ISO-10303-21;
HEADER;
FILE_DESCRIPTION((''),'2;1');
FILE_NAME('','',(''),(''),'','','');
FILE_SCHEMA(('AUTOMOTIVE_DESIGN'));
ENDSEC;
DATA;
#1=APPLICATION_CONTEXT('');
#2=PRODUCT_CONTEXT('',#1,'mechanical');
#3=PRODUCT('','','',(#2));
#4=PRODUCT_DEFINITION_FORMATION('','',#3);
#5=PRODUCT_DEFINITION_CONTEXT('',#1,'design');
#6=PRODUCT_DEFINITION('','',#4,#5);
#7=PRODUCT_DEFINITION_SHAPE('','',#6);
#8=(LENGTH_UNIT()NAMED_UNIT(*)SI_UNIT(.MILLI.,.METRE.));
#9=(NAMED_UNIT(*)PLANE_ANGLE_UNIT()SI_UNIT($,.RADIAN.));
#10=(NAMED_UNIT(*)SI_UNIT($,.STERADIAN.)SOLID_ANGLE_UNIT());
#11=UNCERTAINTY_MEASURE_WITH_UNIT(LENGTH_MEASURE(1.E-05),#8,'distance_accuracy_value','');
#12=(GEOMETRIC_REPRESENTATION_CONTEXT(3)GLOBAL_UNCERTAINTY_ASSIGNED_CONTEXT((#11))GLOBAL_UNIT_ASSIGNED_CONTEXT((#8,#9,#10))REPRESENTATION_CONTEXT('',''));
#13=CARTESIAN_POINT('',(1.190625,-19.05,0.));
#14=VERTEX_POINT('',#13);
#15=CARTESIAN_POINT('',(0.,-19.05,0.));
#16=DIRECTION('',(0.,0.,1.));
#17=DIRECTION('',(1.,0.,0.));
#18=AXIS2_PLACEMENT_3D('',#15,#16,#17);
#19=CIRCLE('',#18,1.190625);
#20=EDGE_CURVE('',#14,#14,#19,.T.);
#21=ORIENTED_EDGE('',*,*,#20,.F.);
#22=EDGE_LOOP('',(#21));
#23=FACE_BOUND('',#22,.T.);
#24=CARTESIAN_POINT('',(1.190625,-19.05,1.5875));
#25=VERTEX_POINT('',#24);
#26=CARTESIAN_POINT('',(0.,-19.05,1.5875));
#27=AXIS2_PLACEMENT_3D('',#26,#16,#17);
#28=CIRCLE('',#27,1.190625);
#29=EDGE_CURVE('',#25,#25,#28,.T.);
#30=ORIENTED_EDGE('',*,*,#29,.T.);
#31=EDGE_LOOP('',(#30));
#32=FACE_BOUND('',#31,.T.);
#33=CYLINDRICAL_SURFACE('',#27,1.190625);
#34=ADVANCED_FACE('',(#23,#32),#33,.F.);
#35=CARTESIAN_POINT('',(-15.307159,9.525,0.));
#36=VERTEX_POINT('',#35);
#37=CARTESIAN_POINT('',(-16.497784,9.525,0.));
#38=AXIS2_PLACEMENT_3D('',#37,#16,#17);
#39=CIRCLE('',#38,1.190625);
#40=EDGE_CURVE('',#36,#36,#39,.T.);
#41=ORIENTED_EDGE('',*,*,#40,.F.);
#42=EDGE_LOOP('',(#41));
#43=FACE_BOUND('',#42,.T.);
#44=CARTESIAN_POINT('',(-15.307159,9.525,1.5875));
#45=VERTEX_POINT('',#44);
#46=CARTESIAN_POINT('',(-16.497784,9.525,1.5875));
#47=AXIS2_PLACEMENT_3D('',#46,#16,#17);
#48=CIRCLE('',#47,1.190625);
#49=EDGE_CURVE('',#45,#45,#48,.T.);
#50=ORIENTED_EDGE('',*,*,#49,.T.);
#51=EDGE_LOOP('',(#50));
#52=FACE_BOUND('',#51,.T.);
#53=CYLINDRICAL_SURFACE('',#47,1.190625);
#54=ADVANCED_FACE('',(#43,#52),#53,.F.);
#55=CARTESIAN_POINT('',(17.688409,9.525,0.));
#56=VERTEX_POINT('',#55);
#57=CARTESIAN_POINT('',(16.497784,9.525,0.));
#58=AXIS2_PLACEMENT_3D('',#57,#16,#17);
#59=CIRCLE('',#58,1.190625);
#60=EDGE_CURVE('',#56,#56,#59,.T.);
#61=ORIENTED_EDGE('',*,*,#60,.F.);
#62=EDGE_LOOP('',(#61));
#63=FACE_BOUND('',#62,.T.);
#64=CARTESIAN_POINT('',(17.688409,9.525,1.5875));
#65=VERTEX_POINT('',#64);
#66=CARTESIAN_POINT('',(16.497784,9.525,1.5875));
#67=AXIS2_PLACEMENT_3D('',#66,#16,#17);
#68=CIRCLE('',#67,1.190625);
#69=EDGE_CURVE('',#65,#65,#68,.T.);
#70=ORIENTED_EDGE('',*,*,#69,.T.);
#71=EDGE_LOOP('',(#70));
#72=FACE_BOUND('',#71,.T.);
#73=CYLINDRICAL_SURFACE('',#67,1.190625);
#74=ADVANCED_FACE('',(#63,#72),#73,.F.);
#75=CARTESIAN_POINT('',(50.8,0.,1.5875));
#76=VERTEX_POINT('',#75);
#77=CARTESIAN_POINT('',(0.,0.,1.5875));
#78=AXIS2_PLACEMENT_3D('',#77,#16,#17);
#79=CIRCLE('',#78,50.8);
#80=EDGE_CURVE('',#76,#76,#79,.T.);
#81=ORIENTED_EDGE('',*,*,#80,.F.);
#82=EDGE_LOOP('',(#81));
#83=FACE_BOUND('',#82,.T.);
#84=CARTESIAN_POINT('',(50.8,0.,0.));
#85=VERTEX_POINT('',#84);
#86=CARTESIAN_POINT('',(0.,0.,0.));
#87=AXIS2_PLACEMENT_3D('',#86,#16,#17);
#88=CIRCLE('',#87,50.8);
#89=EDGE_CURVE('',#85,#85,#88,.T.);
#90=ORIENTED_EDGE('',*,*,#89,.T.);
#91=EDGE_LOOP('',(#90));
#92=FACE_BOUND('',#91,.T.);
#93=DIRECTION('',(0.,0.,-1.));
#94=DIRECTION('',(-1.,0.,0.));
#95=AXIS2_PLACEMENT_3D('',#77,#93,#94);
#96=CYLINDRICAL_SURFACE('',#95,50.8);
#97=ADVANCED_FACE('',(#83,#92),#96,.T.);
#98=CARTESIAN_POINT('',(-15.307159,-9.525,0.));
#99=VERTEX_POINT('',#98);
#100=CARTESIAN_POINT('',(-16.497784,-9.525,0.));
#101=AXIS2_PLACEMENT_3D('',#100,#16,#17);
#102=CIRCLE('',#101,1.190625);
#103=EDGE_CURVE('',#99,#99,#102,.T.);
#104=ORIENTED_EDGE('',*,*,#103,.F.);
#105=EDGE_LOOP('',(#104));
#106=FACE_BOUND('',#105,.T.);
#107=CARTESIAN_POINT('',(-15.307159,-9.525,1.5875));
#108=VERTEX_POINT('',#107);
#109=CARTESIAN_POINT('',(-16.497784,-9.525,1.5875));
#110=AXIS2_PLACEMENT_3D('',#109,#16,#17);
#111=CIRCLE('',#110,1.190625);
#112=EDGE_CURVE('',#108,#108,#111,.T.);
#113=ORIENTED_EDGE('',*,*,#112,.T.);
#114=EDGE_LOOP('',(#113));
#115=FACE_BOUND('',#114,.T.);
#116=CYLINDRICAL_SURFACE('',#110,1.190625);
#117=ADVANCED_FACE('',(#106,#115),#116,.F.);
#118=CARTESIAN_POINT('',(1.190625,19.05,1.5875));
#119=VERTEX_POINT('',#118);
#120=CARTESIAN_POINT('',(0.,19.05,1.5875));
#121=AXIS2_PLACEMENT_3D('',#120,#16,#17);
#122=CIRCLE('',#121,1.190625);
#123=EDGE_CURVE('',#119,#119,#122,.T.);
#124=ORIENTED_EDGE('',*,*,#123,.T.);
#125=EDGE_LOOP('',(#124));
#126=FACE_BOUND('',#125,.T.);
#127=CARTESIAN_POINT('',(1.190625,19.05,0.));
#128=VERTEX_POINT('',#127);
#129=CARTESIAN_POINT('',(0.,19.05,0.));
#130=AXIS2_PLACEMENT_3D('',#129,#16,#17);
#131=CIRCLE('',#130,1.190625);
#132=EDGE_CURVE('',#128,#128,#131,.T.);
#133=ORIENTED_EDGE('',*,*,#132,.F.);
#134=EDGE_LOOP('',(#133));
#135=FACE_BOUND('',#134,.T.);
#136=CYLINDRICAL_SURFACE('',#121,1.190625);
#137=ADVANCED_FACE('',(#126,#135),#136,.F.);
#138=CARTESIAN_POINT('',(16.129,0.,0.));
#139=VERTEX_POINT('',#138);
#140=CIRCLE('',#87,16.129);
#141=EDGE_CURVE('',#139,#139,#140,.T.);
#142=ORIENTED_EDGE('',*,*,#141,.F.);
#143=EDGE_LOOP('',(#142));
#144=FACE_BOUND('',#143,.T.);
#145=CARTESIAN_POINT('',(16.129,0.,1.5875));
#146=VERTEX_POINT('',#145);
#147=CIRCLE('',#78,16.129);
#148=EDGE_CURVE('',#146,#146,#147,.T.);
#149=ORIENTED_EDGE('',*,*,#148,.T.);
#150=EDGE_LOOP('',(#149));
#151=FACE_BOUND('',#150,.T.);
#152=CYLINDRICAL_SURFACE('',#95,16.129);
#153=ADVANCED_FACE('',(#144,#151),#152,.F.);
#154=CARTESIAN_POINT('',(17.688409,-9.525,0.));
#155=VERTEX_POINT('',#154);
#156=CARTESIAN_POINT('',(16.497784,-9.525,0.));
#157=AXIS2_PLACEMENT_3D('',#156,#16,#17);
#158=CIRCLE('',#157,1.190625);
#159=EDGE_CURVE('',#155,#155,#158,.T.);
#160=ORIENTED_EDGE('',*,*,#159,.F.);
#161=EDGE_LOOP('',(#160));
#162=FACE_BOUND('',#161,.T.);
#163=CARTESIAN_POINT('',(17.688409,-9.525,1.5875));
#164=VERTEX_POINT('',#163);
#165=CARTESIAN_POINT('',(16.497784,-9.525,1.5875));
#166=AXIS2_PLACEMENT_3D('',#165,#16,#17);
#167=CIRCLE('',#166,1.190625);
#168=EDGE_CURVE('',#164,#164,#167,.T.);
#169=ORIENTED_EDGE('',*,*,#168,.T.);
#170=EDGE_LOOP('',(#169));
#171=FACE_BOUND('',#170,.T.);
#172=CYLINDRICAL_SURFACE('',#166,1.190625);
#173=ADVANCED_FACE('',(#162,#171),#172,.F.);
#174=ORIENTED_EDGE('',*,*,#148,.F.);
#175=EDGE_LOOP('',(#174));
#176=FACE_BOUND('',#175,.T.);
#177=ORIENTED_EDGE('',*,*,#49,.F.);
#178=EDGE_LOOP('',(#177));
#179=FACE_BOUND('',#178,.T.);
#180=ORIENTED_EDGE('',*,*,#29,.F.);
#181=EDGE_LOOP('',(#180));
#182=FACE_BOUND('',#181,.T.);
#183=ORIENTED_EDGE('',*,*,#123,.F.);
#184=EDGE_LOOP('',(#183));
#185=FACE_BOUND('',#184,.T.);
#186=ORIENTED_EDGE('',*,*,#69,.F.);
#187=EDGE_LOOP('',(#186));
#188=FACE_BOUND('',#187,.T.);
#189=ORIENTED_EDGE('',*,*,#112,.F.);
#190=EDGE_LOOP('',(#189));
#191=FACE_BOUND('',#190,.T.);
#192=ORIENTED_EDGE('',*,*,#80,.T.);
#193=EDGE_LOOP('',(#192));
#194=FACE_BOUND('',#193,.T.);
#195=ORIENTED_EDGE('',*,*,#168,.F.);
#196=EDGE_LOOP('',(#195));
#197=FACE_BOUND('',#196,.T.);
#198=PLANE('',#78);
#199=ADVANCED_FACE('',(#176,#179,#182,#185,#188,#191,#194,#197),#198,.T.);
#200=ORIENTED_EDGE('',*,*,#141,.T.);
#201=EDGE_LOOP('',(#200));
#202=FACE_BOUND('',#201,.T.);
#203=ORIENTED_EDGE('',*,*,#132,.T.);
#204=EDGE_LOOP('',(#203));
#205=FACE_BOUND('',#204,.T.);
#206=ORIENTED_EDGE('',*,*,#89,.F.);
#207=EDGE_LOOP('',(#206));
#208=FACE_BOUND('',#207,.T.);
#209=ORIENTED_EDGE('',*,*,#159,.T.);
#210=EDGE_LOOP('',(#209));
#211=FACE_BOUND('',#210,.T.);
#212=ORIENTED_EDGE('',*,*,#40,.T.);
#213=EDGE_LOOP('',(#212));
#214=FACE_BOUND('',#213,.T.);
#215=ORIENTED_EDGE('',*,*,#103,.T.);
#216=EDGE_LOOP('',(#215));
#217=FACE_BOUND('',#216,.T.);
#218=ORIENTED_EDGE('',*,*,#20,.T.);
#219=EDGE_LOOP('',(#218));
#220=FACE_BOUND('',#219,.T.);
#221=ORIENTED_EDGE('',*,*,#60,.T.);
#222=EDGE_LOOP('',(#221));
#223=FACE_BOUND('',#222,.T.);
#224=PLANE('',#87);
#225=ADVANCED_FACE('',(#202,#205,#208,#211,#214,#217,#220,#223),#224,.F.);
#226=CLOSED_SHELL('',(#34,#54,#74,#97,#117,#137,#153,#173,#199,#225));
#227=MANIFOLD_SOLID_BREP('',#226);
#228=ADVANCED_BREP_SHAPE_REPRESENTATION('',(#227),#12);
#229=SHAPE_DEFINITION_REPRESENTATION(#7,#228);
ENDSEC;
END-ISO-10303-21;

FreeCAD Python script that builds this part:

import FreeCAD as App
import Part
import Sketcher
from FreeCAD import Vector
Q = App.Units.Quantity


def add_polygon(sketch, points):
    """Adds a closed chain of lines whose ends are joined by coincident constraints."""
    first, n = sketch.GeometryCount, len(points)
    for a, b in zip(points, points[1:] + points[:1]):
        sketch.addGeometry(Part.LineSegment(App.Vector(*a, 0), App.Vector(*b, 0)), False)
    for i in range(n):
        sketch.addConstraint(Sketcher.Constraint("Coincident", first + i, 2, first + (i + 1) % n, 1))

doc = App.newDocument("Part")
body = doc.addObject("PartDesign::Body", "Body")

sketch1 = body.newObject("Sketcher::SketchObject", "Sketch")
sketch1.AttachmentSupport = (doc.getObject("XY_Plane"), [""])
sketch1.MapMode = "FlatFace"
sketch1.addGeometry([
    Part.Circle(Vector(0, 0, 0), Vector(0, 0, 1), 51),
    Part.Circle(Vector(0, 0, 0), Vector(0, 0, 1), 16),
], False)
sketch1.addConstraint([
    Sketcher.Constraint("Coincident", 0, 3, -1, 1),
    Sketcher.Constraint("Coincident", 1, 3, -1, 1),
    Sketcher.Constraint("Diameter", 0, Q("4 in")),
    Sketcher.Constraint("Diameter", 1, Q("1.27 in")),
])
pad1 = body.newObject("PartDesign::Pad", "Pad")
pad1.Profile = sketch1
pad1.Length = Q("0.0625 in")

sketch2 = body.newObject("Sketcher::SketchObject", "Sketch001")
sketch2.AttachmentSupport = (doc.getObject("YZ_Plane"), [""])
sketch2.MapMode = "FlatFace"
add_polygon(sketch2, [(19.1, -24.5), (19.1, 1.6), (17.9, 1.6), (17.9, -23.8)])
sketch2.addGeometry(Part.LineSegment(Vector(19.1, 1.6, 0), Vector(19.1, -24.5, 0)), True)
sketch2.addConstraint([
    Sketcher.Constraint("Vertical", 0),
    Sketcher.Constraint("Horizontal", 1),
    Sketcher.Constraint("Vertical", 2),
    Sketcher.Constraint("Vertical", 4),
    Sketcher.Constraint("Coincident", 4, 1, 0, 2),
    Sketcher.Constraint("Equal", 0, 4),
    Sketcher.Constraint("DistanceY", 2, 2, 2, 1, Q("1 in")),
    Sketcher.Constraint("Angle", 3, Q("-31 deg")),
    Sketcher.Constraint("DistanceX", 1, 2, 1, 1, Q("0.046875 in")),
    Sketcher.Constraint("DistanceX", -1, 1, 0, 2, Q("0.75 in")),
    Sketcher.Constraint("DistanceY", -1, 1, 0, 2, Q("0.0625 in")),
])
groove = body.newObject("PartDesign::Groove", "Groove")
groove.Profile = sketch2
groove.ReferenceAxis = (sketch2, ["Axis0"])
groove.Angle = 360
doc.recompute()

polarpattern = body.newObject("PartDesign::PolarPattern", "PolarPattern")
polarpattern.Originals = [groove]
polarpattern.Axis = (doc.getObject("Z_Axis"), [""])
polarpattern.Angle = 360
polarpattern.Occurrences = 6
body.Tip = polarpattern

doc.recompute()
